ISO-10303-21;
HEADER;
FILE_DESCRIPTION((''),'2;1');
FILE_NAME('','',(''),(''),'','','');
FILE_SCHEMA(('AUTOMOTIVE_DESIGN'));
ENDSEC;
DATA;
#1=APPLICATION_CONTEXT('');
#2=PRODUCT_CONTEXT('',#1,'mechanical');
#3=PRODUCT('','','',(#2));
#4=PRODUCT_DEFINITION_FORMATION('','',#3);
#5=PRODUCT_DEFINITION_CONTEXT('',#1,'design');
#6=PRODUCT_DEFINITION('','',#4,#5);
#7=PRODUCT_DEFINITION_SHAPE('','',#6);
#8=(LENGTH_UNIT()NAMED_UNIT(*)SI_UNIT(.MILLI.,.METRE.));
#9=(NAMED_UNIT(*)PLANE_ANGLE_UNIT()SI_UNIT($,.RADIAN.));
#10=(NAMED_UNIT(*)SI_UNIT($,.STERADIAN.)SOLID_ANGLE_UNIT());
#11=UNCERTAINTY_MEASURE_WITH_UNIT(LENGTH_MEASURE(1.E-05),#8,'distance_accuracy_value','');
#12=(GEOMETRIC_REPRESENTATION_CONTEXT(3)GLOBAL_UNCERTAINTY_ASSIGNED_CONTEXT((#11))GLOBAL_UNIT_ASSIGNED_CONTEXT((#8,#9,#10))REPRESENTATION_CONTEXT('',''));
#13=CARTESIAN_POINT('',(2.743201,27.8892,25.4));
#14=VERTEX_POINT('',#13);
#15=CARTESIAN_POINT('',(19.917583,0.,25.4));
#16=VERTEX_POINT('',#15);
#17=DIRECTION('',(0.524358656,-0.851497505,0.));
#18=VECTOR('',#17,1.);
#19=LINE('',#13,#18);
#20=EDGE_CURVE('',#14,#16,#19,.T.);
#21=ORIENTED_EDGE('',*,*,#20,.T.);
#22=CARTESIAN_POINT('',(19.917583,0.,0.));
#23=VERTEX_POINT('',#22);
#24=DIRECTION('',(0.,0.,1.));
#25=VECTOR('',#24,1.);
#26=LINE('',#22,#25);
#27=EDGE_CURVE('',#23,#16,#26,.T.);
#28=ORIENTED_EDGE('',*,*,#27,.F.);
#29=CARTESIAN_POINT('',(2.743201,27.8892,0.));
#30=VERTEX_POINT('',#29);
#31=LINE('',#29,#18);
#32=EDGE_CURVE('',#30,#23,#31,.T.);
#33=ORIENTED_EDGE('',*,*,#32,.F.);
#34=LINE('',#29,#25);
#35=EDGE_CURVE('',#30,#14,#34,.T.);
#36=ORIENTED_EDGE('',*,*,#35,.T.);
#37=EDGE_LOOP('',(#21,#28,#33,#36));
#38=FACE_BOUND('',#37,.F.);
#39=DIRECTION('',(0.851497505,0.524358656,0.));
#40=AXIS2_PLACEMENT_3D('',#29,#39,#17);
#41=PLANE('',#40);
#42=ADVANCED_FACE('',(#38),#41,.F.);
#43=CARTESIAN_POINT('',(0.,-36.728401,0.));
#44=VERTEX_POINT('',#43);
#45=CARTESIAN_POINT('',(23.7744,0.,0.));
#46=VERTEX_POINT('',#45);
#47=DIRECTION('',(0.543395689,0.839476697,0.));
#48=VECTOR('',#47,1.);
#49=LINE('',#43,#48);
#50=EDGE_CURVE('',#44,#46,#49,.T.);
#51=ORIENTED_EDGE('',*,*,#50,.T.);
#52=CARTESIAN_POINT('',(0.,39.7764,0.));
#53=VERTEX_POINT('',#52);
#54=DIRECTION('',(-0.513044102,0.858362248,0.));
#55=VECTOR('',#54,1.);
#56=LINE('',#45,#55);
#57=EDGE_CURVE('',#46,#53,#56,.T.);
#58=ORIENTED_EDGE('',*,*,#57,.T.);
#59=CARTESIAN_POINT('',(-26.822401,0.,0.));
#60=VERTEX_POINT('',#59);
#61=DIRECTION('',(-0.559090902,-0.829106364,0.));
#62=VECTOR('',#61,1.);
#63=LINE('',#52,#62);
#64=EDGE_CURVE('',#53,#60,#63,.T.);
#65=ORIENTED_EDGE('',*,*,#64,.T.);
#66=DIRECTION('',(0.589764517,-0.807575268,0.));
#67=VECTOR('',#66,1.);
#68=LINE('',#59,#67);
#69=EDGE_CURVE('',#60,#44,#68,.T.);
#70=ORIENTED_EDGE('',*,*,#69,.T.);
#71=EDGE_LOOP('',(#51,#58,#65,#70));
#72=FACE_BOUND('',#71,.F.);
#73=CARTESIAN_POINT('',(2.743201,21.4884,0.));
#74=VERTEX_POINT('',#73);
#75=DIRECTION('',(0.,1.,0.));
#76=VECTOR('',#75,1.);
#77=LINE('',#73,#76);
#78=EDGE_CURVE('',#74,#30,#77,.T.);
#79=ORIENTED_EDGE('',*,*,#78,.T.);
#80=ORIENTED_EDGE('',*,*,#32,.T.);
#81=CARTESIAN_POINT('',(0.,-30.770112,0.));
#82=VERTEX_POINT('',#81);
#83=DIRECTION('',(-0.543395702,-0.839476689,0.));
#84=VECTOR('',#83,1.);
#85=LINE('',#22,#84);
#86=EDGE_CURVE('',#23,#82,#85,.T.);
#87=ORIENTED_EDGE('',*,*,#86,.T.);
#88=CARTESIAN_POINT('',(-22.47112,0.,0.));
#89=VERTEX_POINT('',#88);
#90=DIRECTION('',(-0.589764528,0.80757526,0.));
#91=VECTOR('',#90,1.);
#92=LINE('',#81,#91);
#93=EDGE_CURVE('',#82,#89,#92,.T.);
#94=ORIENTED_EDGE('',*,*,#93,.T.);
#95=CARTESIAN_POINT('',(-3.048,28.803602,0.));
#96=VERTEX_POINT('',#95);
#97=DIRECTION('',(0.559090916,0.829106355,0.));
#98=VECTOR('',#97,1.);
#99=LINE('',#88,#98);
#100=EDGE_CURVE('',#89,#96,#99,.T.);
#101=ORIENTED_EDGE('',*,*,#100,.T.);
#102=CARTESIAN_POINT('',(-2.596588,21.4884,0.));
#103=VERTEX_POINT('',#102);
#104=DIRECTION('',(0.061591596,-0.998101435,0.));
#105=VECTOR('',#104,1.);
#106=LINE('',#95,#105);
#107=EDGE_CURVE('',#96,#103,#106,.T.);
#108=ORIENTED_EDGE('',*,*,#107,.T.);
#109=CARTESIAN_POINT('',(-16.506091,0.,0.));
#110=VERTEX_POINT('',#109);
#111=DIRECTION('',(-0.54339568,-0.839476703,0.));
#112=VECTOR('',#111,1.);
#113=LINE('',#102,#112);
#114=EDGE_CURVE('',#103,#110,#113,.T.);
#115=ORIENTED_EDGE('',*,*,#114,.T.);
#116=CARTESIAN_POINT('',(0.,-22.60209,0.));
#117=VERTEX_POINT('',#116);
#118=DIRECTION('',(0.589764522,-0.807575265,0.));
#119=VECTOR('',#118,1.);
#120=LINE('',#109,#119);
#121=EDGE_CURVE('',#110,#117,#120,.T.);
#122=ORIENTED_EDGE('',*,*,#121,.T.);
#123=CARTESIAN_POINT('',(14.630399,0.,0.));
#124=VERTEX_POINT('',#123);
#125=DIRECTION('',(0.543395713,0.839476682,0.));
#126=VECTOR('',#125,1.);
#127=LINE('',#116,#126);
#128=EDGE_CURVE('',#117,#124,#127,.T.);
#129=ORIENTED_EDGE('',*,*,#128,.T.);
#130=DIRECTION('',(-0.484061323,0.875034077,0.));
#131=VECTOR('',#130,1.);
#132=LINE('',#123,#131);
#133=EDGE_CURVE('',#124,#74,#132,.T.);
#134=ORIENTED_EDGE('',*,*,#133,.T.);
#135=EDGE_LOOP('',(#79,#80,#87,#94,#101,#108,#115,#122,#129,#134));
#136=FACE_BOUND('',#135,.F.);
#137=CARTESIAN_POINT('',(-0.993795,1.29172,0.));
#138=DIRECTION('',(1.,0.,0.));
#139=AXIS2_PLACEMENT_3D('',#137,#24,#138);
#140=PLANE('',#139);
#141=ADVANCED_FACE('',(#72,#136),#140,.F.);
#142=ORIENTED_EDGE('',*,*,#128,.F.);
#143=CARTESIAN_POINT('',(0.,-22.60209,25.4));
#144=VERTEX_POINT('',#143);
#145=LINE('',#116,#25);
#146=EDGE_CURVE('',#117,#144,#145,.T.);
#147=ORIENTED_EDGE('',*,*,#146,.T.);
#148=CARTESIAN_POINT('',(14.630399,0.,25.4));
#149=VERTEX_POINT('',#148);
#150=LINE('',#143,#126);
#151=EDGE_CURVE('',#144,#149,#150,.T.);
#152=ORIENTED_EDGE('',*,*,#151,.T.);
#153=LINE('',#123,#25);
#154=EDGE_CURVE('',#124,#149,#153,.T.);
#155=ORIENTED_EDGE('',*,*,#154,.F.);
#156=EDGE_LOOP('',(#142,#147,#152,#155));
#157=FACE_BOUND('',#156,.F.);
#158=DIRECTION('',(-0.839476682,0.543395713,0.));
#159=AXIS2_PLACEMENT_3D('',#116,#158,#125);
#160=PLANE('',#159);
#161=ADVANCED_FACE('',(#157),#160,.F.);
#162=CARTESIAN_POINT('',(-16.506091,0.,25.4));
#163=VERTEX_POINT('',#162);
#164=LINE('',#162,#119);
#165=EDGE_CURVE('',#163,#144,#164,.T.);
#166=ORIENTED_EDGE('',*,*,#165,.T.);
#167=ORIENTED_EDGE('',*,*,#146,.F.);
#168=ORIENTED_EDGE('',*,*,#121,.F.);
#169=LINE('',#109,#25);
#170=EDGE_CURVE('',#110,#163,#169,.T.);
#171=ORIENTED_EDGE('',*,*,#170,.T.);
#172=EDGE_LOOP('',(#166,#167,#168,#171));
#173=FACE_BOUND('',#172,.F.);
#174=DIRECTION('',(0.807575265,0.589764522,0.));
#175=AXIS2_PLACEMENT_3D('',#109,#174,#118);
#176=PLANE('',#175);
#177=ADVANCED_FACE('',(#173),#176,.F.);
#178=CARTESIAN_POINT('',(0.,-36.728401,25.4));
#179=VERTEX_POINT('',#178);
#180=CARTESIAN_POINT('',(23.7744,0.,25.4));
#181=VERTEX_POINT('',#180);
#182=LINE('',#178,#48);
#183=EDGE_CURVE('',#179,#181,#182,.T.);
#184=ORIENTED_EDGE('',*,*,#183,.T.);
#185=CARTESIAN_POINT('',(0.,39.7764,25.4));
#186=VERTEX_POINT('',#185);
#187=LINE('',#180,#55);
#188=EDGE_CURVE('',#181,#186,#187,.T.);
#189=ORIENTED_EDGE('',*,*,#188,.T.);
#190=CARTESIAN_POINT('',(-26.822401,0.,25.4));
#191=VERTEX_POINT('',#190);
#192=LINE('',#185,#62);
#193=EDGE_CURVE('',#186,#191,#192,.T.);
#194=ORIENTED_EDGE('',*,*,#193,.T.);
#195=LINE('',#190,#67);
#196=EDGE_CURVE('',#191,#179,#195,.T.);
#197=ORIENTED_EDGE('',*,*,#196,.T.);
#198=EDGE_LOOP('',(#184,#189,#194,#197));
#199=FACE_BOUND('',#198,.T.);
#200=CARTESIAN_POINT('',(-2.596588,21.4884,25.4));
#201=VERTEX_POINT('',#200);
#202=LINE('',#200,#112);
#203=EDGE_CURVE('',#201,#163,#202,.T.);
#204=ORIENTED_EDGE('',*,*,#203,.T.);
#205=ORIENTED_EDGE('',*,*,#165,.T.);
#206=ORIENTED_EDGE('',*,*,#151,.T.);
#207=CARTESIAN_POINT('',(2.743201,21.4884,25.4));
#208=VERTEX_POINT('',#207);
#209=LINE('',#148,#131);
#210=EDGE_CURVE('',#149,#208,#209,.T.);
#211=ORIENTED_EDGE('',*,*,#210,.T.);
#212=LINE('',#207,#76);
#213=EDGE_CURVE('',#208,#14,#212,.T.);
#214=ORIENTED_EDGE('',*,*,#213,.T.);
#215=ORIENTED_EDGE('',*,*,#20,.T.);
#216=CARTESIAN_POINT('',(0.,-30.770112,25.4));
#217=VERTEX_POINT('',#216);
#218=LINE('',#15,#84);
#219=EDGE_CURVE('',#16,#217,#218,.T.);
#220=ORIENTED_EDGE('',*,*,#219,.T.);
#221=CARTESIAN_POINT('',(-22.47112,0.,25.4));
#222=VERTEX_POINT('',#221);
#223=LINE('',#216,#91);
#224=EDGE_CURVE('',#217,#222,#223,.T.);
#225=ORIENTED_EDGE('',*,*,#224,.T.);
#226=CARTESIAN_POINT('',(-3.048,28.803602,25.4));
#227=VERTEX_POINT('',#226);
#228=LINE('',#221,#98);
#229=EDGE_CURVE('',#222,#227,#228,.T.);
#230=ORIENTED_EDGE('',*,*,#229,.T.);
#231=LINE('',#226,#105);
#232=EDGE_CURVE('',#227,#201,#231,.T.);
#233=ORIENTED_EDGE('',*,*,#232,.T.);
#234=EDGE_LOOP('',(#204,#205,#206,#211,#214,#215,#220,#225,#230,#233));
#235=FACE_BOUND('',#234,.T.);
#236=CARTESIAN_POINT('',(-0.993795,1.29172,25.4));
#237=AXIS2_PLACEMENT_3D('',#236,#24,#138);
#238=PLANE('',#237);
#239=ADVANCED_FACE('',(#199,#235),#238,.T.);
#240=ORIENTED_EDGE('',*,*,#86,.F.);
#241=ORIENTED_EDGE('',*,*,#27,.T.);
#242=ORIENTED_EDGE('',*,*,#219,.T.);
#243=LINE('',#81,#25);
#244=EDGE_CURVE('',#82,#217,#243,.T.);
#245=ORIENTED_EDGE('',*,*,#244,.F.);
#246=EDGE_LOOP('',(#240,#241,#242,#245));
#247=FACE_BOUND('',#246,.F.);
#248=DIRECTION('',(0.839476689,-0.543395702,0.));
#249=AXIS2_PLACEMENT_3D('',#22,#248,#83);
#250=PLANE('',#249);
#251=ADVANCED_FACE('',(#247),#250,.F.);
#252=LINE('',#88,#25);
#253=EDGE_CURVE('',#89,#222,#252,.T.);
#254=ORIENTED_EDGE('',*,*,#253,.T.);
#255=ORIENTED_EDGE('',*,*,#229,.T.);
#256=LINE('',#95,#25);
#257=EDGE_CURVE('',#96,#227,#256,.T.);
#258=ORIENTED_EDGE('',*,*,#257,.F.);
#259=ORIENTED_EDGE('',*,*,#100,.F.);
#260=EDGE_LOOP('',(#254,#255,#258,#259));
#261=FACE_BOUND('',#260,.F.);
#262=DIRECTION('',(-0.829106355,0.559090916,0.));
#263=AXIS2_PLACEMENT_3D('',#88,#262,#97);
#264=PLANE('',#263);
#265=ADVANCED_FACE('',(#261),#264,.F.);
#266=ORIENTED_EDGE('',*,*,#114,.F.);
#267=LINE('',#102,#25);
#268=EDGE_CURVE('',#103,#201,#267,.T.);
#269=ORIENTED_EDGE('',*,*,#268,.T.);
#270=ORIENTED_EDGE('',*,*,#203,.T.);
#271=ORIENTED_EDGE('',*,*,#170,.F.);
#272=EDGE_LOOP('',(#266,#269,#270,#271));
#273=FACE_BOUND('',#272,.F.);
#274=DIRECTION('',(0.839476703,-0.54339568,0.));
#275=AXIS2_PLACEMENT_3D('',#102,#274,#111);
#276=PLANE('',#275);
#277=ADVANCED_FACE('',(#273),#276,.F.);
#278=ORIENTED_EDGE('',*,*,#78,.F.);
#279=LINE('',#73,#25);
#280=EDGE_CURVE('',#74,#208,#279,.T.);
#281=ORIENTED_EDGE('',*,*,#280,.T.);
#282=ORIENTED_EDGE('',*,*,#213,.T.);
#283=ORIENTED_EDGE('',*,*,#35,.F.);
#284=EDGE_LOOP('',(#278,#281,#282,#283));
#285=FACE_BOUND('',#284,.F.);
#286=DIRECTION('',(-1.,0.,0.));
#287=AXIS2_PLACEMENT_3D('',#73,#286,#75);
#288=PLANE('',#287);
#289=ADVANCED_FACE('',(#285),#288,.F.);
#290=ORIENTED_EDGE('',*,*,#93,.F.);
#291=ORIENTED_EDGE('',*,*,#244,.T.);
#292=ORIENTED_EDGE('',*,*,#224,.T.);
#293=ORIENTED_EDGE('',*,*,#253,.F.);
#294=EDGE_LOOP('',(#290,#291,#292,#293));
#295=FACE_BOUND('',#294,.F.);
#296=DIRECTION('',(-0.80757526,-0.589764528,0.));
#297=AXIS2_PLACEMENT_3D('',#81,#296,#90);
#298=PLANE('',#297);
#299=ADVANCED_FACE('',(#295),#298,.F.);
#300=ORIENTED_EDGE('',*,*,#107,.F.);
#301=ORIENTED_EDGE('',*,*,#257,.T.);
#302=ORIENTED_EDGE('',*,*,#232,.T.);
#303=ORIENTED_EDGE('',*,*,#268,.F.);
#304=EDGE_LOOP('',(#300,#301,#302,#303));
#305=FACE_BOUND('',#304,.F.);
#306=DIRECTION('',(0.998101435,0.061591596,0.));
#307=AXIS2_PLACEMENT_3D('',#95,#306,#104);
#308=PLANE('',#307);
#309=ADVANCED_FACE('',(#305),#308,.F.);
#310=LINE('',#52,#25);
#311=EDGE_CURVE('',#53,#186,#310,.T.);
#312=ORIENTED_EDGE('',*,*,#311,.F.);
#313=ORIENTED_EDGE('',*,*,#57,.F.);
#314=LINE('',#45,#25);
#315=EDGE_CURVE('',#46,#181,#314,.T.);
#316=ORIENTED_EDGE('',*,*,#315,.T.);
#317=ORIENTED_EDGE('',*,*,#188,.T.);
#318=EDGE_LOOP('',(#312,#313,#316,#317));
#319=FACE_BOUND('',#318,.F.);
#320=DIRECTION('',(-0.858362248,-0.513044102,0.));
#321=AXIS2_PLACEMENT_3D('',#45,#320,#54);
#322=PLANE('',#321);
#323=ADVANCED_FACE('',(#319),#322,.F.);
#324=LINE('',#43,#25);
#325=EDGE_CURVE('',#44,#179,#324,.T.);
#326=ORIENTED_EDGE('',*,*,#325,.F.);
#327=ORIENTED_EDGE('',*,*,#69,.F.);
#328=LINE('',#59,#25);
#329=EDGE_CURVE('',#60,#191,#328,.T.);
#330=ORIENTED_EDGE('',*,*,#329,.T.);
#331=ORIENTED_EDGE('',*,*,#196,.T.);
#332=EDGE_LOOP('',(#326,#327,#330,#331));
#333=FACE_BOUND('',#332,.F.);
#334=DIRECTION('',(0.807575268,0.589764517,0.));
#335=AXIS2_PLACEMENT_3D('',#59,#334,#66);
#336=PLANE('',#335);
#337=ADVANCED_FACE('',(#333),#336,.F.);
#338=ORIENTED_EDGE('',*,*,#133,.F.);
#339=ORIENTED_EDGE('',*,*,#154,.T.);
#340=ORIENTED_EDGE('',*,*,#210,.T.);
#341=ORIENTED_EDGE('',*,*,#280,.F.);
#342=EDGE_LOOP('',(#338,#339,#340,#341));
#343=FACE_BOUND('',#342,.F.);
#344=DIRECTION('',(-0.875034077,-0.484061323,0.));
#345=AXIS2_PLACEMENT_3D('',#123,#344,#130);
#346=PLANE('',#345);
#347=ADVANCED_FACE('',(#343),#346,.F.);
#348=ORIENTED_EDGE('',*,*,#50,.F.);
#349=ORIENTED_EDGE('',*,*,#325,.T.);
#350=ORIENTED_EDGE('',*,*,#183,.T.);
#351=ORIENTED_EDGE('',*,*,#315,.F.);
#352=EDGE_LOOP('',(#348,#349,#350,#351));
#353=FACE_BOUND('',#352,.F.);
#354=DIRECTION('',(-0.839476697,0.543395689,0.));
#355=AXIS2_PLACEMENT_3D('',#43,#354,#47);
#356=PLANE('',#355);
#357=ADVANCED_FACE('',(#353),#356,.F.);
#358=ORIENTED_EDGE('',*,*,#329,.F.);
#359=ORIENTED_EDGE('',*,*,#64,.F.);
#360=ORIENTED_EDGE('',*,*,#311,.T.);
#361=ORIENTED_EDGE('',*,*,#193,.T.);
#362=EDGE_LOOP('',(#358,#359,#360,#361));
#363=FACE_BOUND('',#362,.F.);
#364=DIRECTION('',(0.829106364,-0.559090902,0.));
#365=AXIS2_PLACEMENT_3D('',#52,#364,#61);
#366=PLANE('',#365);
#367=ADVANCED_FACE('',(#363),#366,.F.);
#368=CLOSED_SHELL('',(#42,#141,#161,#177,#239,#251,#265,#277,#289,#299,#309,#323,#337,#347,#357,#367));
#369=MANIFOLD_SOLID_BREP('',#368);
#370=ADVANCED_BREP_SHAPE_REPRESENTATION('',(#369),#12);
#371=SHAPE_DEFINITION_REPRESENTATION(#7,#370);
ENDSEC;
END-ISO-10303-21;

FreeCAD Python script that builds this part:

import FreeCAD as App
import Part
import Sketcher
Q = App.Units.Quantity


def add_polygon(sketch, points):
    """Adds a closed chain of lines whose ends are joined by coincident constraints."""
    first, n = sketch.GeometryCount, len(points)
    for a, b in zip(points, points[1:] + points[:1]):
        sketch.addGeometry(Part.LineSegment(App.Vector(*a, 0), App.Vector(*b, 0)), False)
    for i in range(n):
        sketch.addConstraint(Sketcher.Constraint("Coincident", first + i, 2, first + (i + 1) % n, 1))

doc = App.newDocument("Part")
params = doc.addObject("Spreadsheet::Sheet", "Params")
for row, (alias, value) in enumerate([
    ("sketch1_height", "0.252 in"),
    ("pad1_length", "1 in"),
], start=1):
    params.set(f"A{row}", alias)
    params.set(f"B{row}", "=" + value)
    params.setAlias(f"B{row}", alias)

body = doc.addObject("PartDesign::Body", "Body")

sketch1 = body.newObject("Sketcher::SketchObject", "Sketch")
sketch1.AttachmentSupport = (doc.getObject("XY_Plane"), [""])
sketch1.MapMode = "FlatFace"
add_polygon(sketch1, [(24, 0), (0, 40), (-27, 0), (0, -37)])
add_polygon(sketch1, [(0, -31), (-22, 0), (-3, 29), (-3, 21), (-17, 0), (0, -23), (15, 0), (3, 21), (3, 28), (20, 0)])
sketch1.addConstraint([
    Sketcher.Constraint("Vertical", 11),
    Sketcher.Constraint("PointOnObject", 0, 2, -2),
    Sketcher.Constraint("PointOnObject", 1, 2, -1),
    Sketcher.Constraint("PointOnObject", 2, 2, -2),
    Sketcher.Constraint("PointOnObject", 3, 2, -1),
    Sketcher.Constraint("PointOnObject", 4, 2, -1),
    Sketcher.Constraint("PointOnObject", 7, 2, -1),
    Sketcher.Constraint("PointOnObject", 8, 2, -2),
    Sketcher.Constraint("PointOnObject", 9, 2, -1),
    Sketcher.Constraint("PointOnObject", 12, 2, -1),
    Sketcher.Constraint("PointOnObject", 13, 2, -2),
    Sketcher.Constraint("Parallel", 2, 4),
    Sketcher.Constraint("Parallel", 1, 5),
    Sketcher.Constraint("Parallel", 3, 7),
    Sketcher.Constraint("Parallel", 4, 8),
    Sketcher.Constraint("Parallel", 7, 9),
    Sketcher.Constraint("Parallel", 9, 13),
    Sketcher.Constraint("Horizontal", 6, 2, 10, 2),
    Sketcher.Constraint("DistanceY", 11, 1, 11, 2, Q("0.252 in")),
    Sketcher.Constraint("DistanceX", 5, 2, -1, 1, Q("0.12 in")),
    Sketcher.Constraint("DistanceY", 2, 2, 5, 2, Q("2.5800001 in")),
    Sketcher.Constraint("DistanceY", 6, 2, 0, 2, Q("0.72 in")),
    Sketcher.Constraint("DistanceX", 9, 2, 3, 2, Q("0.36 in")),
    Sketcher.Constraint("DistanceY", -1, 1, 0, 2, Q("1.566 in")),
    Sketcher.Constraint("DistanceX", 1, 2, -1, 1, Q("1.056 in")),
    Sketcher.Constraint("DistanceY", 2, 2, -1, 1, Q("1.446 in")),
    Sketcher.Constraint("DistanceX", -1, 1, 3, 2, Q("0.936 in")),
    Sketcher.Constraint("DistanceX", -1, 1, 10, 2, Q("0.108 in")),
])
sketch1.setExpression("Constraints[32]", "Params.sketch1_height")
pad1 = body.newObject("PartDesign::Pad", "Pad")
pad1.Profile = sketch1
pad1.setExpression("Length", "Params.pad1_length")

doc.recompute()
